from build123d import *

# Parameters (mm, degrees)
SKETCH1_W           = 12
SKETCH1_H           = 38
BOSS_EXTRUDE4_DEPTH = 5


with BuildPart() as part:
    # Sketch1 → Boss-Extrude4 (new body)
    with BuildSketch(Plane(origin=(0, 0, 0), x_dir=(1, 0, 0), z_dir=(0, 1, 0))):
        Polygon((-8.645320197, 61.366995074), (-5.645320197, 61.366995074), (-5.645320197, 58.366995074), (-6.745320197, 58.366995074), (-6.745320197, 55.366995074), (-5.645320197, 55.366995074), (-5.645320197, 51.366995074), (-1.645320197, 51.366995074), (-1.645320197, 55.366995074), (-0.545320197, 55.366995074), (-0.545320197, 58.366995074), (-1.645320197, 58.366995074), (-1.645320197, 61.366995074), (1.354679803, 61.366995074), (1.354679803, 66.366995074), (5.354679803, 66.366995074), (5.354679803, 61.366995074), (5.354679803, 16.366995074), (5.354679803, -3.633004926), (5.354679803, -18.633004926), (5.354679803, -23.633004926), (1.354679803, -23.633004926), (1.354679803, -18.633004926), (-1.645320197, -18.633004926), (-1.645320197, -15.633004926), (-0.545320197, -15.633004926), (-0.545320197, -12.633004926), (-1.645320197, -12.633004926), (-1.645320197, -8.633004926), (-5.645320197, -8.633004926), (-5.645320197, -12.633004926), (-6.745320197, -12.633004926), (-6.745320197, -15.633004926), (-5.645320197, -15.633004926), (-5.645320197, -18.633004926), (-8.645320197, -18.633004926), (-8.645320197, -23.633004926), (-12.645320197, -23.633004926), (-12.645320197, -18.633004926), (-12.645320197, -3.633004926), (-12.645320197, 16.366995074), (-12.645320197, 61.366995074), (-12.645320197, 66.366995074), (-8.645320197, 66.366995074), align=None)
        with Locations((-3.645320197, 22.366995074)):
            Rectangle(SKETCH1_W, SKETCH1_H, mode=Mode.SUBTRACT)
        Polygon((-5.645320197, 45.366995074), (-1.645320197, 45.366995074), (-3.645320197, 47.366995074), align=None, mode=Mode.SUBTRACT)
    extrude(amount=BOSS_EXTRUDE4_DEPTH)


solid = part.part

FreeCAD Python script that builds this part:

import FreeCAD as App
import Part
import Sketcher

doc = App.newDocument("Part")
body = doc.addObject("PartDesign::Body", "Body")

sketch1 = doc.addObject("Sketcher::SketchObject", "Sketch")
body.addObject(sketch1)
sketch1.AttachmentSupport = (doc.XZ_Plane, [""])
sketch1.MapMode = "FlatFace"
sketch1.addGeometry(Part.LineSegment(App.Vector(-5.6, -61.4, 0), App.Vector(-8.6, -61.4, 0)), False)
sketch1.addGeometry(Part.LineSegment(App.Vector(-8.6, -61.4, 0), App.Vector(-8.6, -66.4, 0)), False)
sketch1.addGeometry(Part.LineSegment(App.Vector(-8.6, -66.4, 0), App.Vector(-12.6, -66.4, 0)), False)
sketch1.addGeometry(Part.LineSegment(App.Vector(-12.6, -66.4, 0), App.Vector(-12.6, 23.6, 0)), False)
sketch1.addGeometry(Part.LineSegment(App.Vector(-12.6, 23.6, 0), App.Vector(-8.6, 23.6, 0)), False)
sketch1.addGeometry(Part.LineSegment(App.Vector(-8.6, 23.6, 0), App.Vector(-8.6, 18.6, 0)), False)
sketch1.addGeometry(Part.LineSegment(App.Vector(-8.6, 18.6, 0), App.Vector(-5.6, 18.6, 0)), False)
sketch1.addGeometry(Part.LineSegment(App.Vector(-5.6, 18.6, 0), App.Vector(-5.6, 15.6, 0)), False)
sketch1.addGeometry(Part.LineSegment(App.Vector(-5.6, 15.6, 0), App.Vector(-6.7, 15.6, 0)), False)
sketch1.addGeometry(Part.LineSegment(App.Vector(-6.7, 15.6, 0), App.Vector(-6.7, 12.6, 0)), False)
sketch1.addGeometry(Part.LineSegment(App.Vector(-6.7, 12.6, 0), App.Vector(-5.6, 12.6, 0)), False)
sketch1.addGeometry(Part.LineSegment(App.Vector(-5.6, 12.6, 0), App.Vector(-5.6, 8.6, 0)), False)
sketch1.addGeometry(Part.LineSegment(App.Vector(-5.6, 8.6, 0), App.Vector(-1.6, 8.6, 0)), False)
sketch1.addGeometry(Part.LineSegment(App.Vector(-1.6, 8.6, 0), App.Vector(-1.6, 12.6, 0)), False)
sketch1.addGeometry(Part.LineSegment(App.Vector(-1.6, 12.6, 0), App.Vector(-0.5, 12.6, 0)), False)
sketch1.addGeometry(Part.LineSegment(App.Vector(-0.5, 12.6, 0), App.Vector(-0.5, 15.6, 0)), False)
sketch1.addGeometry(Part.LineSegment(App.Vector(-0.5, 15.6, 0), App.Vector(-1.6, 15.6, 0)), False)
sketch1.addGeometry(Part.LineSegment(App.Vector(-1.6, 15.6, 0), App.Vector(-1.6, 18.6, 0)), False)
sketch1.addGeometry(Part.LineSegment(App.Vector(-1.6, 18.6, 0), App.Vector(1.4, 18.6, 0)), False)
sketch1.addGeometry(Part.LineSegment(App.Vector(1.4, 18.6, 0), App.Vector(1.4, 23.6, 0)), False)
sketch1.addGeometry(Part.LineSegment(App.Vector(1.4, 23.6, 0), App.Vector(5.4, 23.6, 0)), False)
sketch1.addGeometry(Part.LineSegment(App.Vector(5.4, 23.6, 0), App.Vector(5.4, -66.4, 0)), False)
sketch1.addGeometry(Part.LineSegment(App.Vector(5.4, -66.4, 0), App.Vector(1.4, -66.4, 0)), False)
sketch1.addGeometry(Part.LineSegment(App.Vector(1.4, -66.4, 0), App.Vector(1.4, -61.4, 0)), False)
sketch1.addGeometry(Part.LineSegment(App.Vector(1.4, -61.4, 0), App.Vector(-1.6, -61.4, 0)), False)
sketch1.addGeometry(Part.LineSegment(App.Vector(-1.6, -61.4, 0), App.Vector(-1.6, -58.4, 0)), False)
sketch1.addGeometry(Part.LineSegment(App.Vector(-1.6, -58.4, 0), App.Vector(-0.5, -58.4, 0)), False)
sketch1.addGeometry(Part.LineSegment(App.Vector(-0.5, -58.4, 0), App.Vector(-0.5, -55.4, 0)), False)
sketch1.addGeometry(Part.LineSegment(App.Vector(-0.5, -55.4, 0), App.Vector(-1.6, -55.4, 0)), False)
sketch1.addGeometry(Part.LineSegment(App.Vector(-1.6, -55.4, 0), App.Vector(-1.6, -51.4, 0)), False)
sketch1.addGeometry(Part.LineSegment(App.Vector(-1.6, -51.4, 0), App.Vector(-5.6, -51.4, 0)), False)
sketch1.addGeometry(Part.LineSegment(App.Vector(-5.6, -51.4, 0), App.Vector(-5.6, -55.4, 0)), False)
sketch1.addGeometry(Part.LineSegment(App.Vector(-5.6, -55.4, 0), App.Vector(-6.7, -55.4, 0)), False)
sketch1.addGeometry(Part.LineSegment(App.Vector(-6.7, -55.4, 0), App.Vector(-6.7, -58.4, 0)), False)
sketch1.addGeometry(Part.LineSegment(App.Vector(-6.7, -58.4, 0), App.Vector(-5.6, -58.4, 0)), False)
sketch1.addGeometry(Part.LineSegment(App.Vector(-5.6, -58.4, 0), App.Vector(-5.6, -61.4, 0)), False)
sketch1.addGeometry(Part.LineSegment(App.Vector(-9.6, -3.4, 0), App.Vector(-9.6, -41.4, 0)), False)
sketch1.addGeometry(Part.LineSegment(App.Vector(-9.6, -41.4, 0), App.Vector(2.4, -41.4, 0)), False)
sketch1.addGeometry(Part.LineSegment(App.Vector(2.4, -41.4, 0), App.Vector(2.4, -3.4, 0)), False)
sketch1.addGeometry(Part.LineSegment(App.Vector(2.4, -3.4, 0), App.Vector(-9.6, -3.4, 0)), False)
sketch1.addGeometry(Part.LineSegment(App.Vector(-5.6, -45.4, 0), App.Vector(-3.6, -47.4, 0)), False)
sketch1.addGeometry(Part.LineSegment(App.Vector(-3.6, -47.4, 0), App.Vector(-1.6, -45.4, 0)), False)
sketch1.addGeometry(Part.LineSegment(App.Vector(-1.6, -45.4, 0), App.Vector(-5.6, -45.4, 0)), False)
sketch1.addConstraint(Sketcher.Constraint("Coincident", 0, 2, 1, 1))
sketch1.addConstraint(Sketcher.Constraint("Coincident", 1, 2, 2, 1))
sketch1.addConstraint(Sketcher.Constraint("Coincident", 2, 2, 3, 1))
sketch1.addConstraint(Sketcher.Constraint("Coincident", 3, 2, 4, 1))
sketch1.addConstraint(Sketcher.Constraint("Coincident", 4, 2, 5, 1))
sketch1.addConstraint(Sketcher.Constraint("Coincident", 5, 2, 6, 1))
sketch1.addConstraint(Sketcher.Constraint("Coincident", 6, 2, 7, 1))
sketch1.addConstraint(Sketcher.Constraint("Coincident", 7, 2, 8, 1))
sketch1.addConstraint(Sketcher.Constraint("Coincident", 8, 2, 9, 1))
sketch1.addConstraint(Sketcher.Constraint("Coincident", 9, 2, 10, 1))
sketch1.addConstraint(Sketcher.Constraint("Coincident", 10, 2, 11, 1))
sketch1.addConstraint(Sketcher.Constraint("Coincident", 11, 2, 12, 1))
sketch1.addConstraint(Sketcher.Constraint("Coincident", 12, 2, 13, 1))
sketch1.addConstraint(Sketcher.Constraint("Coincident", 13, 2, 14, 1))
sketch1.addConstraint(Sketcher.Constraint("Coincident", 14, 2, 15, 1))
sketch1.addConstraint(Sketcher.Constraint("Coincident", 15, 2, 16, 1))
sketch1.addConstraint(Sketcher.Constraint("Coincident", 16, 2, 17, 1))
sketch1.addConstraint(Sketcher.Constraint("Coincident", 17, 2, 18, 1))
sketch1.addConstraint(Sketcher.Constraint("Coincident", 18, 2, 19, 1))
sketch1.addConstraint(Sketcher.Constraint("Coincident", 19, 2, 20, 1))
sketch1.addConstraint(Sketcher.Constraint("Coincident", 20, 2, 21, 1))
sketch1.addConstraint(Sketcher.Constraint("Coincident", 21, 2, 22, 1))
sketch1.addConstraint(Sketcher.Constraint("Coincident", 22, 2, 23, 1))
sketch1.addConstraint(Sketcher.Constraint("Coincident", 23, 2, 24, 1))
sketch1.addConstraint(Sketcher.Constraint("Coincident", 24, 2, 25, 1))
sketch1.addConstraint(Sketcher.Constraint("Coincident", 25, 2, 26, 1))
sketch1.addConstraint(Sketcher.Constraint("Coincident", 26, 2, 27, 1))
sketch1.addConstraint(Sketcher.Constraint("Coincident", 27, 2, 28, 1))
sketch1.addConstraint(Sketcher.Constraint("Coincident", 28, 2, 29, 1))
sketch1.addConstraint(Sketcher.Constraint("Coincident", 29, 2, 30, 1))
sketch1.addConstraint(Sketcher.Constraint("Coincident", 30, 2, 31, 1))
sketch1.addConstraint(Sketcher.Constraint("Coincident", 31, 2, 32, 1))
sketch1.addConstraint(Sketcher.Constraint("Coincident", 32, 2, 33, 1))
sketch1.addConstraint(Sketcher.Constraint("Coincident", 33, 2, 34, 1))
sketch1.addConstraint(Sketcher.Constraint("Coincident", 34, 2, 35, 1))
sketch1.addConstraint(Sketcher.Constraint("Coincident", 35, 2, 0, 1))
sketch1.addConstraint(Sketcher.Constraint("Coincident", 36, 2, 37, 1))
sketch1.addConstraint(Sketcher.Constraint("Coincident", 37, 2, 38, 1))
sketch1.addConstraint(Sketcher.Constraint("Coincident", 38, 2, 39, 1))
sketch1.addConstraint(Sketcher.Constraint("Coincident", 39, 2, 36, 1))
sketch1.addConstraint(Sketcher.Constraint("Coincident", 40, 2, 41, 1))
sketch1.addConstraint(Sketcher.Constraint("Coincident", 41, 2, 42, 1))
sketch1.addConstraint(Sketcher.Constraint("Coincident", 42, 2, 40, 1))
sketch1.addConstraint(Sketcher.Constraint("Horizontal", 0))
sketch1.addConstraint(Sketcher.Constraint("Vertical", 1))
sketch1.addConstraint(Sketcher.Constraint("Horizontal", 2))
sketch1.addConstraint(Sketcher.Constraint("Vertical", 3))
sketch1.addConstraint(Sketcher.Constraint("Horizontal", 4))
sketch1.addConstraint(Sketcher.Constraint("Vertical", 5))
sketch1.addConstraint(Sketcher.Constraint("Horizontal", 6))
sketch1.addConstraint(Sketcher.Constraint("Vertical", 7))
sketch1.addConstraint(Sketcher.Constraint("Horizontal", 8))
sketch1.addConstraint(Sketcher.Constraint("Vertical", 9))
sketch1.addConstraint(Sketcher.Constraint("Horizontal", 10))
sketch1.addConstraint(Sketcher.Constraint("Vertical", 11))
sketch1.addConstraint(Sketcher.Constraint("Horizontal", 12))
sketch1.addConstraint(Sketcher.Constraint("Vertical", 13))
sketch1.addConstraint(Sketcher.Constraint("Horizontal", 14))
sketch1.addConstraint(Sketcher.Constraint("Vertical", 15))
sketch1.addConstraint(Sketcher.Constraint("Horizontal", 16))
sketch1.addConstraint(Sketcher.Constraint("Vertical", 17))
sketch1.addConstraint(Sketcher.Constraint("Horizontal", 18))
sketch1.addConstraint(Sketcher.Constraint("Vertical", 19))
sketch1.addConstraint(Sketcher.Constraint("Horizontal", 20))
sketch1.addConstraint(Sketcher.Constraint("Vertical", 21))
sketch1.addConstraint(Sketcher.Constraint("Horizontal", 22))
sketch1.addConstraint(Sketcher.Constraint("Vertical", 23))
sketch1.addConstraint(Sketcher.Constraint("Horizontal", 24))
sketch1.addConstraint(Sketcher.Constraint("Vertical", 25))
sketch1.addConstraint(Sketcher.Constraint("Horizontal", 26))
sketch1.addConstraint(Sketcher.Constraint("Vertical", 27))
sketch1.addConstraint(Sketcher.Constraint("Horizontal", 28))
sketch1.addConstraint(Sketcher.Constraint("Vertical", 29))
sketch1.addConstraint(Sketcher.Constraint("Horizontal", 30))
sketch1.addConstraint(Sketcher.Constraint("Vertical", 31))
sketch1.addConstraint(Sketcher.Constraint("Horizontal", 32))
sketch1.addConstraint(Sketcher.Constraint("Vertical", 33))
sketch1.addConstraint(Sketcher.Constraint("Horizontal", 34))
sketch1.addConstraint(Sketcher.Constraint("Vertical", 35))
sketch1.addConstraint(Sketcher.Constraint("Vertical", 36))
sketch1.addConstraint(Sketcher.Constraint("Horizontal", 37))
sketch1.addConstraint(Sketcher.Constraint("Vertical", 38))
sketch1.addConstraint(Sketcher.Constraint("Horizontal", 39))
sketch1.addConstraint(Sketcher.Constraint("Horizontal", 42))
sketch1.addConstraint(Sketcher.Constraint("Perpendicular", 40, 41))
sketch1.addConstraint(Sketcher.Constraint("Horizontal", 10, 2, 13, 2))
sketch1.addConstraint(Sketcher.Constraint("Horizontal", 8, 2, 15, 2))
sketch1.addConstraint(Sketcher.Constraint("Horizontal", 6, 2, 17, 2))
sketch1.addConstraint(Sketcher.Constraint("Horizontal", 4, 2, 19, 2))
sketch1.addConstraint(Sketcher.Constraint("Horizontal", 2, 2, 21, 2))
sketch1.addConstraint(Sketcher.Constraint("Horizontal", 0, 2, 23, 2))
sketch1.addConstraint(Sketcher.Constraint("Horizontal", 28, 2, 31, 2))
sketch1.addConstraint(Sketcher.Constraint("Horizontal", 26, 2, 33, 2))
sketch1.addConstraint(Sketcher.Constraint("Vertical", 1, 2, 4, 2))
sketch1.addConstraint(Sketcher.Constraint("Vertical", 7, 2, 10, 2))
sketch1.addConstraint(Sketcher.Constraint("Vertical", 13, 2, 16, 2))
sketch1.addConstraint(Sketcher.Constraint("Vertical", 19, 2, 22, 2))
sketch1.addConstraint(Sketcher.Constraint("Vertical", 17, 2, 24, 2))
sketch1.addConstraint(Sketcher.Constraint("Vertical", 15, 2, 26, 2))
sketch1.addConstraint(Sketcher.Constraint("Vertical", 25, 2, 28, 2))
sketch1.addConstraint(Sketcher.Constraint("Vertical", 11, 2, 30, 2))
sketch1.addConstraint(Sketcher.Constraint("Vertical", 9, 2, 32, 2))
sketch1.addConstraint(Sketcher.Constraint("Vertical", 31, 2, 34, 2))
sketch1.addConstraint(Sketcher.Constraint("Vertical", 29, 2, 41, 2))
sketch1.addConstraint(Sketcher.Constraint("Vertical", 35, 2, 42, 2))
sketch1.addConstraint(Sketcher.Constraint("Equal", 4, 12))
sketch1.addConstraint(Sketcher.Constraint("Equal", 10, 14))
sketch1.addConstraint(Sketcher.Constraint("Equal", 6, 18))
sketch1.addConstraint(Sketcher.Constraint("Equal", 12, 20))
sketch1.addConstraint(Sketcher.Constraint("Equal", 1, 5))
sketch1.addConstraint(Sketcher.Constraint("Equal", 24, 7))
sketch1.addConstraint(Sketcher.Constraint("Equal", 7, 9))
sketch1.addConstraint(Sketcher.Constraint("Equal", 42, 11))
sketch1.addConstraint(Sketcher.Constraint("Equal", 17, 25))
sketch1.addConstraint(Sketcher.Constraint("Equal", 25, 27))
sketch1.addConstraint(Sketcher.Constraint("Equal", 13, 29))
sketch1.addConstraint(Sketcher.Constraint("Equal", 40, 41))
sketch1.addConstraint(Sketcher.Constraint("DistanceX", 0, 2, 0, 1, 3.0))
sketch1.addConstraint(Sketcher.Constraint("DistanceX", 2, 2, 2, 1, 4.0))
sketch1.addConstraint(Sketcher.Constraint("DistanceX", 37, 1, 37, 2, 12.0))
sketch1.addConstraint(Sketcher.Constraint("DistanceY", 1, 2, 1, 1, 5.0))
sketch1.addConstraint(Sketcher.Constraint("DistanceY", 3, 1, 3, 2, 90.0))
sketch1.addConstraint(Sketcher.Constraint("DistanceY", 36, 2, 36, 1, 38.0))
sketch1.addConstraint(Sketcher.Constraint("DistanceX", 8, 2, 8, 1, 1.1))
sketch1.addConstraint(Sketcher.Constraint("DistanceX", 36, 2, 30, 2, 4.0))
sketch1.addConstraint(Sketcher.Constraint("DistanceY", 30, 2, 36, 2, 10.0))
sketch1.addConstraint(Sketcher.Constraint("DistanceY", 29, 2, 40, 2, 4.0))
sketch1.addConstraint(Sketcher.Constraint("DistanceX", 0, 2, -1, 1, 8.64532))
sketch1.addConstraint(Sketcher.Constraint("DistanceY", 0, 2, -1, 1, 61.366995))
pad1 = doc.addObject("PartDesign::Pad", "Pad")
body.addObject(pad1)
pad1.Profile = sketch1
pad1.Length = 5
pad1.Reversed = True

doc.recompute()
